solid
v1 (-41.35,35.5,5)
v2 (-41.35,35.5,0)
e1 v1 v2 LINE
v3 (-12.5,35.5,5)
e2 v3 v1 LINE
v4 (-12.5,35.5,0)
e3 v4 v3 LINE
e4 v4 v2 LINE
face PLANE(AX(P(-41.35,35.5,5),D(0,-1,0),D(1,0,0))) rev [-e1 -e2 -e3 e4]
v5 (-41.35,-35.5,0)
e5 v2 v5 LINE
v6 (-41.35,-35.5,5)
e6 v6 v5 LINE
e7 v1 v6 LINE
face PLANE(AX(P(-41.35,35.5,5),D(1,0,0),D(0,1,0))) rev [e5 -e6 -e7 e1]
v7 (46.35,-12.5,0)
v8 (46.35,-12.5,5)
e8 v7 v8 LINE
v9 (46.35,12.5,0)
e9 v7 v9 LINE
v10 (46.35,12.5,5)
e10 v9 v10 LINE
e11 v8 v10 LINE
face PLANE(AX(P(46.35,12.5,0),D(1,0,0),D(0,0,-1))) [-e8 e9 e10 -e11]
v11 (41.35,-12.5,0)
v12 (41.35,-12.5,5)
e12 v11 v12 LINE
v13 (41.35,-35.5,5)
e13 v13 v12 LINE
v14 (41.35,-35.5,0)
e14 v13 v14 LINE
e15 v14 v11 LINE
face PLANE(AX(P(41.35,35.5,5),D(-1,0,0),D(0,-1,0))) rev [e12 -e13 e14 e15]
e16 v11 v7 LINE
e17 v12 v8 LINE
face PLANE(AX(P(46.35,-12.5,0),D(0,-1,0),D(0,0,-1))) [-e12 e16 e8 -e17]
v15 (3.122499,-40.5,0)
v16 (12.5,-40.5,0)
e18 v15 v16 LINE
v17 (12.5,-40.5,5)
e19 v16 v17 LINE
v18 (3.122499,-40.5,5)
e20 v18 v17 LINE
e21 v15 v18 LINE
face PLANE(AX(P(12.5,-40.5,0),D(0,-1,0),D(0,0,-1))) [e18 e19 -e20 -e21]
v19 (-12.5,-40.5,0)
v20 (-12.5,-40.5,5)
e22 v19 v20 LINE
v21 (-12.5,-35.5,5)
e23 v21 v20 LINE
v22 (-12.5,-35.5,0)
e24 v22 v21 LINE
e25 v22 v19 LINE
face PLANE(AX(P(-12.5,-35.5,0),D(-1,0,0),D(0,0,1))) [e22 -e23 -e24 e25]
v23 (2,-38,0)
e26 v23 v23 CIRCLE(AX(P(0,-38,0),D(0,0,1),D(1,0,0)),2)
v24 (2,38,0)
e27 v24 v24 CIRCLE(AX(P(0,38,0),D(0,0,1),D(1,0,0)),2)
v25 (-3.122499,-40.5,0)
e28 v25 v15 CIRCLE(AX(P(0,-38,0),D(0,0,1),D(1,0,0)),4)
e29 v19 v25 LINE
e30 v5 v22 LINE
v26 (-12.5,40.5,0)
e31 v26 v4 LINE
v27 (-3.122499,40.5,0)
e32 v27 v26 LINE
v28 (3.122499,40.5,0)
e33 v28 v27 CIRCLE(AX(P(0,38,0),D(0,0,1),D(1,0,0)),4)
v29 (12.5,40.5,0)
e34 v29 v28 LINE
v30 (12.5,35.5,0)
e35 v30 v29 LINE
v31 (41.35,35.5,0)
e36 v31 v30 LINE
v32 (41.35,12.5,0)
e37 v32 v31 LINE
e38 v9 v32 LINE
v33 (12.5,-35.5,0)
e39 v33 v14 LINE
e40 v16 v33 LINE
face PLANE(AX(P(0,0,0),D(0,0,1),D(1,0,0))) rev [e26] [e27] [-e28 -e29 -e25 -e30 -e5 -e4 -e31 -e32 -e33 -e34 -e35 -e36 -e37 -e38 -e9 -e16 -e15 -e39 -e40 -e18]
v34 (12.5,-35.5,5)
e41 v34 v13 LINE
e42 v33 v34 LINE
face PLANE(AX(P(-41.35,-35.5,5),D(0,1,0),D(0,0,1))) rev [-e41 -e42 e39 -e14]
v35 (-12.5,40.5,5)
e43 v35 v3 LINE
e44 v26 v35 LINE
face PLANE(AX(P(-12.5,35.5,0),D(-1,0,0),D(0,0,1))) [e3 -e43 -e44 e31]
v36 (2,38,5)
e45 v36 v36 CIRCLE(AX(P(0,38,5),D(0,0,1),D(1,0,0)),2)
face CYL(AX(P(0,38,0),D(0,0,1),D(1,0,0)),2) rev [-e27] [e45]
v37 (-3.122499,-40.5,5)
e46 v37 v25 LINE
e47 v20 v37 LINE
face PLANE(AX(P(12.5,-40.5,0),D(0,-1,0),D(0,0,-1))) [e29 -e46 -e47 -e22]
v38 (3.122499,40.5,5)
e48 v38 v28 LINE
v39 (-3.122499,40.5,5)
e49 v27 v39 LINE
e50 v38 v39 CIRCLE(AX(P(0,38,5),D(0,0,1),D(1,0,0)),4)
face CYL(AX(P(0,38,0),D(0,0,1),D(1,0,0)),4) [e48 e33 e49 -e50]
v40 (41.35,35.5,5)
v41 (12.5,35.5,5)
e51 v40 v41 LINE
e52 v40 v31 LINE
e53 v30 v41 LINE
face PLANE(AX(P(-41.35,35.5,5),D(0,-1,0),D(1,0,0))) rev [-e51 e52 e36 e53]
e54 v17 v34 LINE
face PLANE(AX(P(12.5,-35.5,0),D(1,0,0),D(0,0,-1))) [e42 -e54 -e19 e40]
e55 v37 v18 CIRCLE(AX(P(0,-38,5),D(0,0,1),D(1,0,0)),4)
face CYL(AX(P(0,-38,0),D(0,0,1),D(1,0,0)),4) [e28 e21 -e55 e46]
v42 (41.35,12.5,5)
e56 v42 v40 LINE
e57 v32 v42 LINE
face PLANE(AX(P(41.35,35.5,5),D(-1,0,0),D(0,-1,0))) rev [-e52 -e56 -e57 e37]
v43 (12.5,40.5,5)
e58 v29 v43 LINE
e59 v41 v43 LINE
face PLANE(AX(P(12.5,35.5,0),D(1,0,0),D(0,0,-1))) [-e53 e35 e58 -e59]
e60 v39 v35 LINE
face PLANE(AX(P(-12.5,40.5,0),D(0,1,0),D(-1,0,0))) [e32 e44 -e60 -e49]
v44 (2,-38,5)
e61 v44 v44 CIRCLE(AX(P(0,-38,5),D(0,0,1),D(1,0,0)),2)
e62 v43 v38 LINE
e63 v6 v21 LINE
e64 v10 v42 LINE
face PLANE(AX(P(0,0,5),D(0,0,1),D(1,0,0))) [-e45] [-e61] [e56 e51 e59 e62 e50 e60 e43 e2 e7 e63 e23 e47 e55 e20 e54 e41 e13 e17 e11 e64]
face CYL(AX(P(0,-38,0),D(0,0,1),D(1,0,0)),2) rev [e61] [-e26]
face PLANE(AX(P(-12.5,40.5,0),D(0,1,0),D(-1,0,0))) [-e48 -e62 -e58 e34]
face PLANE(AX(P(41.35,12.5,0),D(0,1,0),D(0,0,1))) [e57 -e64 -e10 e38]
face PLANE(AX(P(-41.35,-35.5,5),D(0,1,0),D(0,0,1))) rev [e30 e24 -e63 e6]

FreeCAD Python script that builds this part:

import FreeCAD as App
import Part
import Sketcher
Q = App.Units.Quantity


def add_polygon(sketch, points):
    """Adds a closed chain of lines whose ends are joined by coincident constraints."""
    first, n = sketch.GeometryCount, len(points)
    for a, b in zip(points, points[1:] + points[:1]):
        sketch.addGeometry(Part.LineSegment(App.Vector(*a, 0), App.Vector(*b, 0)), False)
    for i in range(n):
        sketch.addConstraint(Sketcher.Constraint("Coincident", first + i, 2, first + (i + 1) % n, 1))

doc = App.newDocument("Part")
params = doc.addObject("Spreadsheet::Sheet", "Params")
for row, (alias, value) in enumerate([
    ("sketch1_height", "71 mm"),
    ("sketch1_width", "82.7 mm"),
    ("pad1_length", "5 mm"),
    ("sketch2_width", "25 mm"),
    ("sketch2_width2", "5 mm"),
    ("pad2_length", "5 mm"),
    ("sketch3_diameter", "4 mm"),
    ("pocket1_length", "5 mm"),
    ("sketch4_diameter", "8 mm"),
    ("sketch4_diameter2", "4 mm"),
    ("pad3_length", "5 mm"),
], start=1):
    params.set(f"A{row}", alias)
    params.set(f"B{row}", "=" + value)
    params.setAlias(f"B{row}", alias)

body = doc.addObject("PartDesign::Body", "Body")

sketch1 = body.newObject("Sketcher::SketchObject", "Sketch")
sketch1.AttachmentSupport = (doc.getObject("XY_Plane"), [""])
sketch1.MapMode = "FlatFace"
add_polygon(sketch1, [(-41.35, 35.5), (-41.35, -35.5), (41.35, -35.5), (41.35, 35.5)])
sketch1.addConstraint([
    Sketcher.Constraint("Vertical", 0),
    Sketcher.Constraint("Horizontal", 1),
    Sketcher.Constraint("Vertical", 2),
    Sketcher.Constraint("Horizontal", 3),
    Sketcher.Constraint("Symmetric", 0, 2, 2, 2, -1, 1),
    Sketcher.Constraint("DistanceY", 0, 2, 0, 1, Q("71 mm")),
    Sketcher.Constraint("DistanceX", 1, 1, 1, 2, Q("82.7 mm")),
])
sketch1.setExpression("Constraints[9]", "Params.sketch1_height")
sketch1.setExpression("Constraints[10]", "Params.sketch1_width")
pad1 = body.newObject("PartDesign::Pad", "Pad")
pad1.Profile = sketch1
pad1.setExpression("Length", "Params.pad1_length")

sketch2 = body.newObject("Sketcher::SketchObject", "Sketch001")
sketch2.AttachmentSupport = (doc.getObject("XY_Plane"), [""])
sketch2.MapMode = "FlatFace"
sketch2.AttachmentOffset = App.Placement(App.Vector(0, 0, 5), App.Rotation())
add_polygon(sketch2, [(-12.5, 40.5), (-12.5, 35.5), (12.5, 35.5), (12.5, 40.5)])
add_polygon(sketch2, [(41.35, 12.5), (41.35, -12.5), (46.35, -12.5), (46.35, 12.5)])
add_polygon(sketch2, [(-12.5, -35.5), (-12.5, -40.5), (12.5, -40.5), (12.5, -35.5)])
sketch2.addConstraint([
    Sketcher.Constraint("Vertical", 0),
    Sketcher.Constraint("Horizontal", 1),
    Sketcher.Constraint("Vertical", 2),
    Sketcher.Constraint("Horizontal", 3),
    Sketcher.Constraint("Vertical", 4),
    Sketcher.Constraint("Horizontal", 5),
    Sketcher.Constraint("Vertical", 6),
    Sketcher.Constraint("Horizontal", 7),
    Sketcher.Constraint("Vertical", 8),
    Sketcher.Constraint("Horizontal", 9),
    Sketcher.Constraint("Vertical", 10),
    Sketcher.Constraint("Horizontal", 11),
    Sketcher.Constraint("Symmetric", 2, 2, 8, 2, -1, 1),
    Sketcher.Constraint("Symmetric", 0, 2, 10, 2, -1, 1),
    Sketcher.Constraint("Vertical", 3, 2, 8, 2),
    Sketcher.Constraint("Equal", 7, 0),
    Sketcher.Constraint("Equal", 11, 4),
    Sketcher.Constraint("DistanceX", 1, 1, 1, 2, Q("25 mm")),
    Sketcher.Constraint("DistanceX", 5, 1, 5, 2, Q("5 mm")),
    Sketcher.Constraint("DistanceY", 4, 2, 1, 2, Q("48 mm")),
    Sketcher.Constraint("DistanceY", 8, 2, 4, 2, Q("28 mm")),
    Sketcher.Constraint("DistanceX", -1, 1, 4, 2, Q("41.35 mm")),
])
sketch2.setExpression("Constraints[29]", "Params.sketch2_width")
sketch2.setExpression("Constraints[30]", "Params.sketch2_width2")
pad2 = body.newObject("PartDesign::Pad", "Pad001")
pad2.Profile = sketch2
pad2.setExpression("Length", "Params.pad2_length")
pad2.Reversed = True

sketch3 = body.newObject("Sketcher::SketchObject", "Sketch002")
sketch3.AttachmentSupport = (doc.getObject("XY_Plane"), [""])
sketch3.MapMode = "FlatFace"
sketch3.AttachmentOffset = App.Placement(App.Vector(0, 0, 5), App.Rotation())
sketch3.addGeometry([
    Part.Circle(App.Vector(0, 38, 0), App.Vector(0, 0, 1), 2),
    Part.Circle(App.Vector(0, -38, 0), App.Vector(0, 0, 1), 2),
], False)
sketch3.addConstraint([
    Sketcher.Constraint("Equal", 0, 1),
    Sketcher.Constraint("Symmetric", 0, 3, 1, 3, -1, 1),
    Sketcher.Constraint("PointOnObject", 0, 3, -2),
    Sketcher.Constraint("Diameter", 0, Q("4 mm")),
    Sketcher.Constraint("DistanceY", -1, 1, 0, 3, Q("38 mm")),
])
sketch3.setExpression("Constraints[3]", "Params.sketch3_diameter")
pocket1 = body.newObject("PartDesign::Pocket", "Pocket")
pocket1.Profile = sketch3
pocket1.setExpression("Length", "Params.pocket1_length")

sketch4 = body.newObject("Sketcher::SketchObject", "Sketch003")
sketch4.AttachmentSupport = (doc.getObject("XY_Plane"), [""])
sketch4.MapMode = "FlatFace"
sketch4.AttachmentOffset = App.Placement(App.Vector(0, 0, 5), App.Rotation())
sketch4.addGeometry([
    Part.Circle(App.Vector(0, 38, 0), App.Vector(0, 0, 1), 4),
    Part.Circle(App.Vector(0, 38, 0), App.Vector(0, 0, 1), 2),
    Part.Circle(App.Vector(0, -38, 0), App.Vector(0, 0, 1), 4),
    Part.Circle(App.Vector(0, -38, 0), App.Vector(0, 0, 1), 2),
], False)
sketch4.addConstraint([
    Sketcher.Constraint("Coincident", 1, 3, 0, 3),
    Sketcher.Constraint("Coincident", 3, 3, 2, 3),
    Sketcher.Constraint("Equal", 0, 2),
    Sketcher.Constraint("Equal", 1, 3),
    Sketcher.Constraint("Symmetric", 0, 3, 2, 3, -1, 1),
    Sketcher.Constraint("PointOnObject", 0, 3, -2),
    Sketcher.Constraint("Diameter", 0, Q("8 mm")),
    Sketcher.Constraint("Diameter", 1, Q("4 mm")),
    Sketcher.Constraint("DistanceY", -1, 1, 0, 3, Q("38 mm")),
])
sketch4.setExpression("Constraints[6]", "Params.sketch4_diameter")
sketch4.setExpression("Constraints[7]", "Params.sketch4_diameter2")
pad3 = body.newObject("PartDesign::Pad", "Pad002")
pad3.Profile = sketch4
pad3.setExpression("Length", "Params.pad3_length")
pad3.Reversed = True

doc.recompute()
